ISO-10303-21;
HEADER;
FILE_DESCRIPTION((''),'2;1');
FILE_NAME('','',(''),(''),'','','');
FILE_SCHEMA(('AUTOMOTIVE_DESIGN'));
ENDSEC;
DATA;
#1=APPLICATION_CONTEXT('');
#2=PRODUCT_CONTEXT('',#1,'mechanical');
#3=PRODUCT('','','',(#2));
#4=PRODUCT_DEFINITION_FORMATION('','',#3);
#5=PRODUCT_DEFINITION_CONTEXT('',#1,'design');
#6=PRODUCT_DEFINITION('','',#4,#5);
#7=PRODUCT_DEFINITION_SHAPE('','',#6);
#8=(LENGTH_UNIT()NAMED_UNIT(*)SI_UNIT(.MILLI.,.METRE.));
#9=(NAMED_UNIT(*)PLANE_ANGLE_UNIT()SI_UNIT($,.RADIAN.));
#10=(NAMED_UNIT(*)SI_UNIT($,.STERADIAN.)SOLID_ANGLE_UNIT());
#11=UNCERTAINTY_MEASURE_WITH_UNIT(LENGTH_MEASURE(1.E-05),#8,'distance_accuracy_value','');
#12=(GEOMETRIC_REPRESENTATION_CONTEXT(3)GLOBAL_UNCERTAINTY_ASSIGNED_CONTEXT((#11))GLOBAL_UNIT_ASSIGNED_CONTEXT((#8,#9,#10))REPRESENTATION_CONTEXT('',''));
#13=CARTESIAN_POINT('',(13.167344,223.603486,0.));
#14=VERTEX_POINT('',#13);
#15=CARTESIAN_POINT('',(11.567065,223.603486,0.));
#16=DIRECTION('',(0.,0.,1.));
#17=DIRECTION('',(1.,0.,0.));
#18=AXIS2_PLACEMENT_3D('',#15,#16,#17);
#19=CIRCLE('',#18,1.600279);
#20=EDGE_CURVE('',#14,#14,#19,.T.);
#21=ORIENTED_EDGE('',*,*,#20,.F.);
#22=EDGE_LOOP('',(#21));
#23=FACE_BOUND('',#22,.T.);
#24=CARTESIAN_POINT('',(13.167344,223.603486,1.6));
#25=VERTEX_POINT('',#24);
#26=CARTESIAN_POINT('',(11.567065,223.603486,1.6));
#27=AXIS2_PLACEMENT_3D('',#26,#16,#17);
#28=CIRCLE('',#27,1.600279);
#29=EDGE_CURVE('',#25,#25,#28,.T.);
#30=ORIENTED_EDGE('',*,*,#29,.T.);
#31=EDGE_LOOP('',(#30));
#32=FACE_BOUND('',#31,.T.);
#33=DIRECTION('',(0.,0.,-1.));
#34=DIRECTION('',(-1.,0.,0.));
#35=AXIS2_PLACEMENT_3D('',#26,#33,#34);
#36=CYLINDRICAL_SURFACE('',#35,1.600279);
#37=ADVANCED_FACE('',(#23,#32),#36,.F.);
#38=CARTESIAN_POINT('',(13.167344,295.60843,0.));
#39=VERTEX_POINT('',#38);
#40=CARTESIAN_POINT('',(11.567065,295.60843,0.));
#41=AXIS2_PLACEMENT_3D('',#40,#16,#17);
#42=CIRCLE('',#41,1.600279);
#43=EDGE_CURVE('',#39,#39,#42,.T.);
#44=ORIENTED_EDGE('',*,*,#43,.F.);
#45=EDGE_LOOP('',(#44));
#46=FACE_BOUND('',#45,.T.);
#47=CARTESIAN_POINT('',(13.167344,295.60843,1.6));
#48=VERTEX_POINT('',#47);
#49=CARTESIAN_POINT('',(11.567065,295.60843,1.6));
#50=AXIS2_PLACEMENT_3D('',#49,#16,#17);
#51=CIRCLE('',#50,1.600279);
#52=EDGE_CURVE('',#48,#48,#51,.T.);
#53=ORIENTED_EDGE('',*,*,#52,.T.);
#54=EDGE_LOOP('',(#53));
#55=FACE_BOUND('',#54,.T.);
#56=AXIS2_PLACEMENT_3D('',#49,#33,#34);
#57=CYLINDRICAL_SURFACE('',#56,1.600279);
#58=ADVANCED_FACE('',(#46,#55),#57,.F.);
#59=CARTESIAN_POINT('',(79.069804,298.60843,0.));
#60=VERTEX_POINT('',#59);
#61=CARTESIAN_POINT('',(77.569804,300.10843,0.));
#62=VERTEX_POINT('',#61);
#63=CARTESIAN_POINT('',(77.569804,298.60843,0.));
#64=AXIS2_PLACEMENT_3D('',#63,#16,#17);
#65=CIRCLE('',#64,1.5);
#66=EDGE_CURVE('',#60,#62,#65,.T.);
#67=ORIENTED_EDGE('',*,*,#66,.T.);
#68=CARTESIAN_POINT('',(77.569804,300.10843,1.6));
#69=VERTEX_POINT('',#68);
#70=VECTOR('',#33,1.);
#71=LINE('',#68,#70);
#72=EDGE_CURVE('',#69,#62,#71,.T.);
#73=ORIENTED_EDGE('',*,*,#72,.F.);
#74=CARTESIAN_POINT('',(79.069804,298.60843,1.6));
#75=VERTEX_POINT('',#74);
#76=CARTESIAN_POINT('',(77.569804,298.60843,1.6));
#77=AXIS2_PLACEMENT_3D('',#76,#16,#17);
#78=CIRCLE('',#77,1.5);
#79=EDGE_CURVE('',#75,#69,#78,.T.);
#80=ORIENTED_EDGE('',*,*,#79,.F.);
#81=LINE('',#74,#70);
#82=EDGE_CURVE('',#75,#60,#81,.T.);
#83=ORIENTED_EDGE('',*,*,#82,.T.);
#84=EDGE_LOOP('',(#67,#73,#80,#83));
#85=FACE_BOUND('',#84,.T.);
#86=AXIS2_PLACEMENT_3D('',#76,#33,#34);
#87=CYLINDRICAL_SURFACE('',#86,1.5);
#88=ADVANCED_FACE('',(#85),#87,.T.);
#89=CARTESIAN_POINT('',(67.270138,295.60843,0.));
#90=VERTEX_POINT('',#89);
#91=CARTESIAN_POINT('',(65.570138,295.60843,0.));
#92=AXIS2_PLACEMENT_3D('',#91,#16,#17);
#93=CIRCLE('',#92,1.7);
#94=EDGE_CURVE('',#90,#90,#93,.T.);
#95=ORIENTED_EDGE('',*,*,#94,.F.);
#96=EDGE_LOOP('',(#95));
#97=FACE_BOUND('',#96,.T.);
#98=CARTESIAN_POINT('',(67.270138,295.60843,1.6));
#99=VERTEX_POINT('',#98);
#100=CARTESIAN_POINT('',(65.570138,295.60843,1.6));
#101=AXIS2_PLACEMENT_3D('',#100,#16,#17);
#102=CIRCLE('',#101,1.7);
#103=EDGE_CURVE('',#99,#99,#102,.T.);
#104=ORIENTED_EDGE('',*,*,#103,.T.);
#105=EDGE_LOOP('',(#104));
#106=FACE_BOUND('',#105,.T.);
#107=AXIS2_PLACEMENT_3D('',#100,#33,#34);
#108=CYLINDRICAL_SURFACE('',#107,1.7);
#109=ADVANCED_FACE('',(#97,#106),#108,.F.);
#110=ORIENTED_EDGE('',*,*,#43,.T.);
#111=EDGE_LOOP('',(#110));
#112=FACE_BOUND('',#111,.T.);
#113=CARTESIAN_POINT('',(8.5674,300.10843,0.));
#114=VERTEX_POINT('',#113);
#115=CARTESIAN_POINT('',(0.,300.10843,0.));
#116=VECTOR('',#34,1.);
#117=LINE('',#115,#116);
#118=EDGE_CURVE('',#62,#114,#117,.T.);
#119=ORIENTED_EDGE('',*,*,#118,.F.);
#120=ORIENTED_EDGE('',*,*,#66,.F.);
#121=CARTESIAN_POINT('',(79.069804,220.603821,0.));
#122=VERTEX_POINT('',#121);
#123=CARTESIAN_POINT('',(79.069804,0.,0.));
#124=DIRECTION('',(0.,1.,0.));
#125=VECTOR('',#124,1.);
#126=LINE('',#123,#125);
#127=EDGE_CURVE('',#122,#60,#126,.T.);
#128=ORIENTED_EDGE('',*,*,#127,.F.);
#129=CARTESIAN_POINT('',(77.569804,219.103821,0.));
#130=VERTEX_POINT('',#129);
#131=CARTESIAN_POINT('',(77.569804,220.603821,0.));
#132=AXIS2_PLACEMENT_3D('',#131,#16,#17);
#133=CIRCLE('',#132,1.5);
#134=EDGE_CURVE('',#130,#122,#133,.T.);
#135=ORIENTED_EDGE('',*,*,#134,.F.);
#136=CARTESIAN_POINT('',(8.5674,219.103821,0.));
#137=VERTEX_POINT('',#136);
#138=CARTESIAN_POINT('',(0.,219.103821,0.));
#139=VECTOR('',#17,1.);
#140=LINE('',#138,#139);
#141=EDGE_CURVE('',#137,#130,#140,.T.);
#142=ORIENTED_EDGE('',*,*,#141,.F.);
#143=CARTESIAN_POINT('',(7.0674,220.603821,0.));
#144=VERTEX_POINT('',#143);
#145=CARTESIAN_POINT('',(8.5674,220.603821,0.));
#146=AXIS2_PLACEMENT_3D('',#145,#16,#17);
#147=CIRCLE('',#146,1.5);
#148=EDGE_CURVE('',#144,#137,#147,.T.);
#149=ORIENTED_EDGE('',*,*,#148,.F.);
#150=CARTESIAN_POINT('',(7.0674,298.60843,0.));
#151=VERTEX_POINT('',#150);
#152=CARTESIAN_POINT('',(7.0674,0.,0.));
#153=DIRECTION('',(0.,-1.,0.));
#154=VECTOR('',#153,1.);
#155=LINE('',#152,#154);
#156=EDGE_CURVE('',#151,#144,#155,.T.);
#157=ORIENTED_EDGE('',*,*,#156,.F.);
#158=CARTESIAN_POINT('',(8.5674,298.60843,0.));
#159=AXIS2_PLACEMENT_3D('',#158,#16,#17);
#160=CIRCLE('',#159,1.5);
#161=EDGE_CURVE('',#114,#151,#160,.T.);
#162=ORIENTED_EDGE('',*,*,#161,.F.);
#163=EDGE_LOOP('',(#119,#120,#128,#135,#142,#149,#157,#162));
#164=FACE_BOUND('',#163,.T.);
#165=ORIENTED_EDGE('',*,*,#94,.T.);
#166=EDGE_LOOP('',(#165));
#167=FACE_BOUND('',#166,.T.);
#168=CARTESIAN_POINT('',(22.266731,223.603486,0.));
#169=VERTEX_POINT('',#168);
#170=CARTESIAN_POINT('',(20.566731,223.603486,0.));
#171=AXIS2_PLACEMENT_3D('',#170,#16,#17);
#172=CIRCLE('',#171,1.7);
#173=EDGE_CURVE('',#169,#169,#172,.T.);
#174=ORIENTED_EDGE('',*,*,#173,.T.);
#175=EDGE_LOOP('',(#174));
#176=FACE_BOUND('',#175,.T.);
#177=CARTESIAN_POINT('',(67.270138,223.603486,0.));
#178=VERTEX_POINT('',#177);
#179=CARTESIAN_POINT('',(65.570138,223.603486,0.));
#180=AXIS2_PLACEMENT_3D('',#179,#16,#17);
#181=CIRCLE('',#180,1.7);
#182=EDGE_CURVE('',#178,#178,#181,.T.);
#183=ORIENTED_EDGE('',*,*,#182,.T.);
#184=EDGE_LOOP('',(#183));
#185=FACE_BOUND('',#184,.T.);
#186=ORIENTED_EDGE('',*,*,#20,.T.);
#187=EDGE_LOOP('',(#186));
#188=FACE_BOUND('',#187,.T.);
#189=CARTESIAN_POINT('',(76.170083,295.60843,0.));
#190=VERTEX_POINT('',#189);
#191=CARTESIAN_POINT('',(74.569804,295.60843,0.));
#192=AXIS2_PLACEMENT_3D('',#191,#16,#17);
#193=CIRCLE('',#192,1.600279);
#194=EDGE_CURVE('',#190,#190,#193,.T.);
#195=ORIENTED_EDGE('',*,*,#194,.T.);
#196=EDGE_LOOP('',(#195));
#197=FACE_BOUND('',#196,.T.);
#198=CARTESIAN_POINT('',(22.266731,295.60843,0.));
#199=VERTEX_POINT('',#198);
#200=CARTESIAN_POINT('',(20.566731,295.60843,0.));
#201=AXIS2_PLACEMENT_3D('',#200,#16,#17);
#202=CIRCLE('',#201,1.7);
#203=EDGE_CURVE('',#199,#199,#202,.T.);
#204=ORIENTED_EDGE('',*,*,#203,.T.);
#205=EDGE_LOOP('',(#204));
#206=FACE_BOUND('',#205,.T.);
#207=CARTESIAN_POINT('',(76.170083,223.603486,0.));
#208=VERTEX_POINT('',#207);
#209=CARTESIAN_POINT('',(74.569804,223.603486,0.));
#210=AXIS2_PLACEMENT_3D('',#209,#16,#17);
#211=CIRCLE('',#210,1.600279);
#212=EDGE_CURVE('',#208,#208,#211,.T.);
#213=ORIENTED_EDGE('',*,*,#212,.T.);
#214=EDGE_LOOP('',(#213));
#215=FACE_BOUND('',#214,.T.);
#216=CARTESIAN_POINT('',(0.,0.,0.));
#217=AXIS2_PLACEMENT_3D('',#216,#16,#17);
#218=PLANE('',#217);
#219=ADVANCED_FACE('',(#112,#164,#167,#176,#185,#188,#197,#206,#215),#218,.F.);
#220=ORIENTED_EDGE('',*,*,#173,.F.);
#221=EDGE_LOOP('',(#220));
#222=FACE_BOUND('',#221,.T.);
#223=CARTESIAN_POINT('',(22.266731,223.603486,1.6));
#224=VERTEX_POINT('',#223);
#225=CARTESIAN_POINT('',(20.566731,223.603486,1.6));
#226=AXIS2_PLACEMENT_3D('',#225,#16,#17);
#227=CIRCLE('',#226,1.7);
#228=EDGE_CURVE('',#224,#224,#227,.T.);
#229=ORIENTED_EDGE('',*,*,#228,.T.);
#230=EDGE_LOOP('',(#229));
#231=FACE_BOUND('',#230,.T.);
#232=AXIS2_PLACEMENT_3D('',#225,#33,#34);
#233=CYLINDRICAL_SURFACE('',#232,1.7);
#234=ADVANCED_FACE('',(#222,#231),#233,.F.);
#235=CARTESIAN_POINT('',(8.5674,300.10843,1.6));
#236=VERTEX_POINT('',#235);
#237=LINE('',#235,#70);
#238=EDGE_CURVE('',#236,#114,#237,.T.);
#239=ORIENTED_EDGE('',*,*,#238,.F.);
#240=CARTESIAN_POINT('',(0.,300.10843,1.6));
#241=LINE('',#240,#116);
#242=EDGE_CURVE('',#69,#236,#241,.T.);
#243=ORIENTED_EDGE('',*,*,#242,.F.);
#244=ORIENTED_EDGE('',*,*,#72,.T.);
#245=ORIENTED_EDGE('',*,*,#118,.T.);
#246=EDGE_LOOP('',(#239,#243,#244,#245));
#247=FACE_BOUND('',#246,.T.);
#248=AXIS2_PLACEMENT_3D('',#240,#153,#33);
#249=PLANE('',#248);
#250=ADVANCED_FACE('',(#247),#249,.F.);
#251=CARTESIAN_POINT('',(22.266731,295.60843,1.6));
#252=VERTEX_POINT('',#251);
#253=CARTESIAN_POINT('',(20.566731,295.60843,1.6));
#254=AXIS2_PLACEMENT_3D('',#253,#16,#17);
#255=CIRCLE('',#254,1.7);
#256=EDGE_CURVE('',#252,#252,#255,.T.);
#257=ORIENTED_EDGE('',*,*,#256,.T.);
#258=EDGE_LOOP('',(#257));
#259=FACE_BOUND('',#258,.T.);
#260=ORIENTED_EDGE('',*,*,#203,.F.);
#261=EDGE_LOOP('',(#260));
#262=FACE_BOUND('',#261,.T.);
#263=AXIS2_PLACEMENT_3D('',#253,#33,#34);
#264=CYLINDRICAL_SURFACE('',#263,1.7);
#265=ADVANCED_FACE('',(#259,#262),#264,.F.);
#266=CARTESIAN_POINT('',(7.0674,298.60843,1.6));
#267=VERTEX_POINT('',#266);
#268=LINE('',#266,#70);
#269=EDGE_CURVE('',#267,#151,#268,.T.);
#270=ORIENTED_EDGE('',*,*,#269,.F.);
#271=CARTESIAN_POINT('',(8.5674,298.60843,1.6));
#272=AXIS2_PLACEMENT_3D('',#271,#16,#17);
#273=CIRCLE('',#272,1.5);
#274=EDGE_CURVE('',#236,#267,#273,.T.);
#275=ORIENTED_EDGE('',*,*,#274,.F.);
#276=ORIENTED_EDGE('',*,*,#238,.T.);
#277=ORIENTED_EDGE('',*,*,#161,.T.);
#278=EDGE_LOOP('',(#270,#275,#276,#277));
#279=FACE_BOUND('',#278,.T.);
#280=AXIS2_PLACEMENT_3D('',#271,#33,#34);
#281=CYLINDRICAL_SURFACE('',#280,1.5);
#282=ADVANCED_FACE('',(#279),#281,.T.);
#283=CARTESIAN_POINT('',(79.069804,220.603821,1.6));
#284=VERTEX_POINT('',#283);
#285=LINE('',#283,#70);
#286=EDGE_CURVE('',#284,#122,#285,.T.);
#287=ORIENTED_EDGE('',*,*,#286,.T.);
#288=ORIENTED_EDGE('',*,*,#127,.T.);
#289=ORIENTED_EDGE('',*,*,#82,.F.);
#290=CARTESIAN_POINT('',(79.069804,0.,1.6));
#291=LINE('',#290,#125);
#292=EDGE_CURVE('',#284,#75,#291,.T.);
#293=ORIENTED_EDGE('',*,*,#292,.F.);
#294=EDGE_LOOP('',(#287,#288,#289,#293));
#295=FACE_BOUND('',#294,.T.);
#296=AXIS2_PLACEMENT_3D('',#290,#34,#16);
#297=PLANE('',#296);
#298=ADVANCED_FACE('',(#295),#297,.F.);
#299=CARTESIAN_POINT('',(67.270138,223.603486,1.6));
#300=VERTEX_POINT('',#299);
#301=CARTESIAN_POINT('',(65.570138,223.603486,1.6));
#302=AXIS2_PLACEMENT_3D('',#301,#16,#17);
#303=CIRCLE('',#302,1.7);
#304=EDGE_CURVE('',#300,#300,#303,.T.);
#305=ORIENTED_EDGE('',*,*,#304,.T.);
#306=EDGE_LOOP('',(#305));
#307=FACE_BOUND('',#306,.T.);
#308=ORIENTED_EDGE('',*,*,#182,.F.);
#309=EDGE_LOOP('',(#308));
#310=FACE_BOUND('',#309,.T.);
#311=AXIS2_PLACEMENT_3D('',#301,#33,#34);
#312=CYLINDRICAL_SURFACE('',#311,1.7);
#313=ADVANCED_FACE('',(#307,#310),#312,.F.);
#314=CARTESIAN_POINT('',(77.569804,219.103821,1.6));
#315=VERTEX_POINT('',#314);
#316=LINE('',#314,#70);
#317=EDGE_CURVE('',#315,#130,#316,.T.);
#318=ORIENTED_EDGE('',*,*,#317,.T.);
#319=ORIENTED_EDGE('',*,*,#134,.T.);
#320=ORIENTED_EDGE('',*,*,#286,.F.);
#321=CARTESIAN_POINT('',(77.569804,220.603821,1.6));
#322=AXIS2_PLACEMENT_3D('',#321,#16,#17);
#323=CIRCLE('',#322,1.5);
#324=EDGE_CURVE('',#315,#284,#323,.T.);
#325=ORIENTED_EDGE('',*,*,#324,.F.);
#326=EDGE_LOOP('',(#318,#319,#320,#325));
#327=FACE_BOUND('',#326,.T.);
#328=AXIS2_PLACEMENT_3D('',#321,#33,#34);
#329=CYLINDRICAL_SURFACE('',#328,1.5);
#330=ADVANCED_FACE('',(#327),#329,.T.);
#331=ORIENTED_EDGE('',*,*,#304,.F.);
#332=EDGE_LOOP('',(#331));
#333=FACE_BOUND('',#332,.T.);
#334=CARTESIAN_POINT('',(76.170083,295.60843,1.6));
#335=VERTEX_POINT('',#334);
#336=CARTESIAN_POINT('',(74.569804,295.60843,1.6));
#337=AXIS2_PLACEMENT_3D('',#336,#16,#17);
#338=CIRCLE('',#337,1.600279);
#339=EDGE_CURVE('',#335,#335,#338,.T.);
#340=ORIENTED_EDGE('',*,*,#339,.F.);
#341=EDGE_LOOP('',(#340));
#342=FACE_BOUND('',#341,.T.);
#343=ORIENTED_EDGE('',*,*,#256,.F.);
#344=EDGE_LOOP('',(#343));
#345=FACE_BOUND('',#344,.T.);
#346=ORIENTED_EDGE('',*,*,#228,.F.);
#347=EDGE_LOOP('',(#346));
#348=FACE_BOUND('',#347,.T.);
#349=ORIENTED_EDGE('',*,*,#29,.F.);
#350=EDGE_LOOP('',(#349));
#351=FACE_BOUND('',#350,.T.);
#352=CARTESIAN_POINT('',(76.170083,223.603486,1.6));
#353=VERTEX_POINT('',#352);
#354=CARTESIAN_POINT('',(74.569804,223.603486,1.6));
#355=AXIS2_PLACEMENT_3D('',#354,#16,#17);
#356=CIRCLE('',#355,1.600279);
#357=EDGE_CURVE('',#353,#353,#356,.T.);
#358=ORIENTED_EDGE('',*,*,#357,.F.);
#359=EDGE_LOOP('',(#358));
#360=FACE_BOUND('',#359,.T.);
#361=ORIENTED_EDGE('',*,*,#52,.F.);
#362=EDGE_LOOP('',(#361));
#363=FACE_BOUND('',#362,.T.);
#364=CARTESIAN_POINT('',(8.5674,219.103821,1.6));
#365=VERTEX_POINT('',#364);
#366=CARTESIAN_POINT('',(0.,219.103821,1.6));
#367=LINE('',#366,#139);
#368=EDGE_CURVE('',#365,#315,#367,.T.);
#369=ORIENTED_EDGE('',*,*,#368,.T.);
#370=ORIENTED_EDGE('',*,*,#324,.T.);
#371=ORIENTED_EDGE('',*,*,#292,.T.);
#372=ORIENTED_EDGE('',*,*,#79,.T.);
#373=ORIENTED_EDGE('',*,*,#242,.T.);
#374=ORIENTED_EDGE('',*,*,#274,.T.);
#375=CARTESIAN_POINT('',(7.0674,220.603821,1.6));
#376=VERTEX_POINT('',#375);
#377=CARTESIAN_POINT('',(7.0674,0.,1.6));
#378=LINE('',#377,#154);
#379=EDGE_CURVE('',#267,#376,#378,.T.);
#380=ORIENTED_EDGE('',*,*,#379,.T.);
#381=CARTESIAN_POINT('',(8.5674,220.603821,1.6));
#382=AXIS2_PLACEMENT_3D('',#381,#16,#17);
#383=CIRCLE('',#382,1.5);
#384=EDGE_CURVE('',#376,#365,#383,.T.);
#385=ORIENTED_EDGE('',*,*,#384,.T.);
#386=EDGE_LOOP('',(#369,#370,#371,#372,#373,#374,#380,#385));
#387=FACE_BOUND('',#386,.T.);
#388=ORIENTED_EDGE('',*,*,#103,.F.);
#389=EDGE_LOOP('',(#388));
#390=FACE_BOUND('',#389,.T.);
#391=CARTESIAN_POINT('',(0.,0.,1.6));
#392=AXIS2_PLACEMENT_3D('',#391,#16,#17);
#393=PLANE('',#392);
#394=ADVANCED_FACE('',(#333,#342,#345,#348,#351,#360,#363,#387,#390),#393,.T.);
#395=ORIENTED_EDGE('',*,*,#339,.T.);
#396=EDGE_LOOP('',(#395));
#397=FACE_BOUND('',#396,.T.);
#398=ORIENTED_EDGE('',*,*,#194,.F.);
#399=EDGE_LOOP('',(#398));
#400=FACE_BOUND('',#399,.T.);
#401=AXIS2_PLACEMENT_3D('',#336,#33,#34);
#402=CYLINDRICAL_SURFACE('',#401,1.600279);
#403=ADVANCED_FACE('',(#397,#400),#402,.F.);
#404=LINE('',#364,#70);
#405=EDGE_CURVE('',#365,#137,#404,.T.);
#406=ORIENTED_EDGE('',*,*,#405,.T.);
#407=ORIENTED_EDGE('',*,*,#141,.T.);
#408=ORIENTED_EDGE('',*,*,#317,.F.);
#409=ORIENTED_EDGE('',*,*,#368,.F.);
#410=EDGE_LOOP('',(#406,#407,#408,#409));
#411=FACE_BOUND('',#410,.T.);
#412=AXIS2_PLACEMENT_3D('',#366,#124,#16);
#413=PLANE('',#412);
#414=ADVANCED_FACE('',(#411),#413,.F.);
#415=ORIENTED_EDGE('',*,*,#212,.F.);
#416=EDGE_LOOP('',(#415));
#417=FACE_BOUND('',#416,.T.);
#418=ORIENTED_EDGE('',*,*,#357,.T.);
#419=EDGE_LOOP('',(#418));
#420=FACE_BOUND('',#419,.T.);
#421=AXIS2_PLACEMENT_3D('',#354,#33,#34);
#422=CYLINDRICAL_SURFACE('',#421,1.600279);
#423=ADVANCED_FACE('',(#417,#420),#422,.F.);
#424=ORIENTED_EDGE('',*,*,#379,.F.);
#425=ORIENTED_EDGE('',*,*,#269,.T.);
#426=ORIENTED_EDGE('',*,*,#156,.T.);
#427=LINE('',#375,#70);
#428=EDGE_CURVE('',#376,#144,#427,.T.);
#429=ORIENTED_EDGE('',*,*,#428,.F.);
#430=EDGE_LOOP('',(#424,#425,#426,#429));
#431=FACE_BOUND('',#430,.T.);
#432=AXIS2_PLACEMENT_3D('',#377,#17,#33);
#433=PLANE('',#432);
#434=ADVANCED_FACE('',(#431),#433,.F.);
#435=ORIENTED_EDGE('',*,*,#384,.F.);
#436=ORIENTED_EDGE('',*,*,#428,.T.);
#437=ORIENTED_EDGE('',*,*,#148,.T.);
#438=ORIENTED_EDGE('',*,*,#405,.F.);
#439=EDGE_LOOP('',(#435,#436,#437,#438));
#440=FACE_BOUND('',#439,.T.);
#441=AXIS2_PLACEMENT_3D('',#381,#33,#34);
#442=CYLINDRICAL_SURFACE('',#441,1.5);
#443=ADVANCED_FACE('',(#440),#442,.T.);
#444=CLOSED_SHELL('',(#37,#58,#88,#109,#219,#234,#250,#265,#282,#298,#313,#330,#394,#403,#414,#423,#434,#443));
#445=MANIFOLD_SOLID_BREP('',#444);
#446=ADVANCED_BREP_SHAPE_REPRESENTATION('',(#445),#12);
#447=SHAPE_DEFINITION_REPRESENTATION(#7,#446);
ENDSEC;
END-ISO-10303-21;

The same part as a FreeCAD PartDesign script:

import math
import FreeCAD as App
import Part
import Sketcher

V = App.Vector

doc = App.newDocument("Part")
body = doc.addObject("PartDesign::Body", "Body")

# Sketch on XY plane
sketch1 = body.newObject("Sketcher::SketchObject", "Sketch")
sketch1.AttachmentSupport = (doc.getObject("XY_Plane"), [""])
sketch1.MapMode = "FlatFace"
sketch1.addGeometry(Part.LineSegment(V(79.1, 220.6, 0), V(79.1, 298.6, 0)), False)
sketch1.addGeometry(Part.ArcOfCircle(Part.Circle(V(77.6, 298.6, 0), V(0, 0, 1), 1.5), math.radians(0), math.radians(90)), False)
sketch1.addGeometry(Part.LineSegment(V(77.6, 300.1, 0), V(8.6, 300.1, 0)), False)
sketch1.addGeometry(Part.ArcOfCircle(Part.Circle(V(8.6, 298.6, 0), V(0, 0, 1), 1.5), math.radians(90), math.radians(180)), False)
sketch1.addGeometry(Part.LineSegment(V(7.1, 298.6, 0), V(7.1, 220.6, 0)), False)
sketch1.addGeometry(Part.ArcOfCircle(Part.Circle(V(8.6, 220.6, 0), V(0, 0, 1), 1.5), math.radians(180), math.radians(270)), False)
sketch1.addGeometry(Part.LineSegment(V(8.6, 219.1, 0), V(77.6, 219.1, 0)), False)
sketch1.addGeometry(Part.ArcOfCircle(Part.Circle(V(77.6, 220.6, 0), V(0, 0, 1), 1.5), math.radians(-90), math.radians(0)), False)
sketch1.addGeometry(Part.Circle(V(11.6, 223.6, 0), V(0, 0, 1), 1.6), False)
sketch1.addGeometry(Part.Circle(V(20.6, 223.6, 0), V(0, 0, 1), 1.7), False)
sketch1.addGeometry(Part.Circle(V(65.6, 223.6, 0), V(0, 0, 1), 1.7), False)
sketch1.addGeometry(Part.Circle(V(74.6, 223.6, 0), V(0, 0, 1), 1.6), False)
sketch1.addGeometry(Part.Circle(V(11.6, 295.6, 0), V(0, 0, 1), 1.6), False)
sketch1.addGeometry(Part.Circle(V(20.6, 295.6, 0), V(0, 0, 1), 1.7), False)
sketch1.addGeometry(Part.Circle(V(65.6, 295.6, 0), V(0, 0, 1), 1.7), False)
sketch1.addGeometry(Part.Circle(V(74.6, 295.6, 0), V(0, 0, 1), 1.6), False)
sketch1.addConstraint(Sketcher.Constraint("Tangent", 0, 2, 1, 1))
sketch1.addConstraint(Sketcher.Constraint("Tangent", 1, 2, 2, 1))
sketch1.addConstraint(Sketcher.Constraint("Tangent", 2, 2, 3, 1))
sketch1.addConstraint(Sketcher.Constraint("Tangent", 3, 2, 4, 1))
sketch1.addConstraint(Sketcher.Constraint("Tangent", 4, 2, 5, 1))
sketch1.addConstraint(Sketcher.Constraint("Tangent", 5, 2, 6, 1))
sketch1.addConstraint(Sketcher.Constraint("Tangent", 6, 2, 7, 1))
sketch1.addConstraint(Sketcher.Constraint("Tangent", 7, 2, 0, 1))
sketch1.addConstraint(Sketcher.Constraint("Vertical", 0))
sketch1.addConstraint(Sketcher.Constraint("Horizontal", 2))
sketch1.addConstraint(Sketcher.Constraint("Vertical", 4))
sketch1.addConstraint(Sketcher.Constraint("Horizontal", 6))
sketch1.addConstraint(Sketcher.Constraint("Equal", 1, 3))
sketch1.addConstraint(Sketcher.Constraint("Equal", 3, 5))
sketch1.addConstraint(Sketcher.Constraint("Equal", 5, 7))
sketch1.addConstraint(Sketcher.Constraint("Equal", 9, 10))
sketch1.addConstraint(Sketcher.Constraint("Equal", 8, 11))
sketch1.addConstraint(Sketcher.Constraint("Equal", 11, 12))
sketch1.addConstraint(Sketcher.Constraint("Equal", 10, 13))
sketch1.addConstraint(Sketcher.Constraint("Equal", 13, 14))
sketch1.addConstraint(Sketcher.Constraint("Equal", 12, 15))
sketch1.addConstraint(Sketcher.Constraint("Horizontal", 8, 3, 9, 3))
sketch1.addConstraint(Sketcher.Constraint("Horizontal", 9, 3, 10, 3))
sketch1.addConstraint(Sketcher.Constraint("Horizontal", 10, 3, 11, 3))
sketch1.addConstraint(Sketcher.Constraint("Horizontal", 12, 3, 13, 3))
sketch1.addConstraint(Sketcher.Constraint("Horizontal", 13, 3, 14, 3))
sketch1.addConstraint(Sketcher.Constraint("Horizontal", 14, 3, 15, 3))
sketch1.addConstraint(Sketcher.Constraint("Vertical", 8, 3, 12, 3))
sketch1.addConstraint(Sketcher.Constraint("Vertical", 9, 3, 13, 3))
sketch1.addConstraint(Sketcher.Constraint("Vertical", 10, 3, 14, 3))
sketch1.addConstraint(Sketcher.Constraint("Vertical", 11, 3, 15, 3))
sketch1.addConstraint(Sketcher.Constraint("Diameter", 9, 3.4))
sketch1.addConstraint(Sketcher.Constraint("Radius", 1, 1.5))
sketch1.addConstraint(Sketcher.Constraint("DistanceX", 11, 3, 7, 3, 3.0))
sketch1.addConstraint(Sketcher.Constraint("DistanceY", 12, 3, 3, 3, 3.0))
sketch1.addConstraint(Sketcher.Constraint("Diameter", 8, 3.200558))
sketch1.addConstraint(Sketcher.Constraint("DistanceY", 0, 1, 0, 2, 78.00461))
sketch1.addConstraint(Sketcher.Constraint("DistanceX", -1, 1, 3, 3, 8.5674))
sketch1.addConstraint(Sketcher.Constraint("DistanceX", 2, 2, 2, 1, 69.002404))
sketch1.addConstraint(Sketcher.Constraint("DistanceY", -1, 1, 1, 3, 298.60843))
sketch1.addConstraint(Sketcher.Constraint("DistanceX", -1, 1, 9, 3, 20.566731))
sketch1.addConstraint(Sketcher.Constraint("DistanceX", -1, 1, 10, 3, 65.570138))
sketch1.addConstraint(Sketcher.Constraint("DistanceX", 8, 3, 7, 3, 66.002739))
sketch1.addConstraint(Sketcher.Constraint("DistanceY", -1, 1, 8, 3, 223.603486))
pad1 = body.newObject("PartDesign::Pad", "Pad")
pad1.Profile = sketch1
pad1.Length = 1.6

doc.recompute()
